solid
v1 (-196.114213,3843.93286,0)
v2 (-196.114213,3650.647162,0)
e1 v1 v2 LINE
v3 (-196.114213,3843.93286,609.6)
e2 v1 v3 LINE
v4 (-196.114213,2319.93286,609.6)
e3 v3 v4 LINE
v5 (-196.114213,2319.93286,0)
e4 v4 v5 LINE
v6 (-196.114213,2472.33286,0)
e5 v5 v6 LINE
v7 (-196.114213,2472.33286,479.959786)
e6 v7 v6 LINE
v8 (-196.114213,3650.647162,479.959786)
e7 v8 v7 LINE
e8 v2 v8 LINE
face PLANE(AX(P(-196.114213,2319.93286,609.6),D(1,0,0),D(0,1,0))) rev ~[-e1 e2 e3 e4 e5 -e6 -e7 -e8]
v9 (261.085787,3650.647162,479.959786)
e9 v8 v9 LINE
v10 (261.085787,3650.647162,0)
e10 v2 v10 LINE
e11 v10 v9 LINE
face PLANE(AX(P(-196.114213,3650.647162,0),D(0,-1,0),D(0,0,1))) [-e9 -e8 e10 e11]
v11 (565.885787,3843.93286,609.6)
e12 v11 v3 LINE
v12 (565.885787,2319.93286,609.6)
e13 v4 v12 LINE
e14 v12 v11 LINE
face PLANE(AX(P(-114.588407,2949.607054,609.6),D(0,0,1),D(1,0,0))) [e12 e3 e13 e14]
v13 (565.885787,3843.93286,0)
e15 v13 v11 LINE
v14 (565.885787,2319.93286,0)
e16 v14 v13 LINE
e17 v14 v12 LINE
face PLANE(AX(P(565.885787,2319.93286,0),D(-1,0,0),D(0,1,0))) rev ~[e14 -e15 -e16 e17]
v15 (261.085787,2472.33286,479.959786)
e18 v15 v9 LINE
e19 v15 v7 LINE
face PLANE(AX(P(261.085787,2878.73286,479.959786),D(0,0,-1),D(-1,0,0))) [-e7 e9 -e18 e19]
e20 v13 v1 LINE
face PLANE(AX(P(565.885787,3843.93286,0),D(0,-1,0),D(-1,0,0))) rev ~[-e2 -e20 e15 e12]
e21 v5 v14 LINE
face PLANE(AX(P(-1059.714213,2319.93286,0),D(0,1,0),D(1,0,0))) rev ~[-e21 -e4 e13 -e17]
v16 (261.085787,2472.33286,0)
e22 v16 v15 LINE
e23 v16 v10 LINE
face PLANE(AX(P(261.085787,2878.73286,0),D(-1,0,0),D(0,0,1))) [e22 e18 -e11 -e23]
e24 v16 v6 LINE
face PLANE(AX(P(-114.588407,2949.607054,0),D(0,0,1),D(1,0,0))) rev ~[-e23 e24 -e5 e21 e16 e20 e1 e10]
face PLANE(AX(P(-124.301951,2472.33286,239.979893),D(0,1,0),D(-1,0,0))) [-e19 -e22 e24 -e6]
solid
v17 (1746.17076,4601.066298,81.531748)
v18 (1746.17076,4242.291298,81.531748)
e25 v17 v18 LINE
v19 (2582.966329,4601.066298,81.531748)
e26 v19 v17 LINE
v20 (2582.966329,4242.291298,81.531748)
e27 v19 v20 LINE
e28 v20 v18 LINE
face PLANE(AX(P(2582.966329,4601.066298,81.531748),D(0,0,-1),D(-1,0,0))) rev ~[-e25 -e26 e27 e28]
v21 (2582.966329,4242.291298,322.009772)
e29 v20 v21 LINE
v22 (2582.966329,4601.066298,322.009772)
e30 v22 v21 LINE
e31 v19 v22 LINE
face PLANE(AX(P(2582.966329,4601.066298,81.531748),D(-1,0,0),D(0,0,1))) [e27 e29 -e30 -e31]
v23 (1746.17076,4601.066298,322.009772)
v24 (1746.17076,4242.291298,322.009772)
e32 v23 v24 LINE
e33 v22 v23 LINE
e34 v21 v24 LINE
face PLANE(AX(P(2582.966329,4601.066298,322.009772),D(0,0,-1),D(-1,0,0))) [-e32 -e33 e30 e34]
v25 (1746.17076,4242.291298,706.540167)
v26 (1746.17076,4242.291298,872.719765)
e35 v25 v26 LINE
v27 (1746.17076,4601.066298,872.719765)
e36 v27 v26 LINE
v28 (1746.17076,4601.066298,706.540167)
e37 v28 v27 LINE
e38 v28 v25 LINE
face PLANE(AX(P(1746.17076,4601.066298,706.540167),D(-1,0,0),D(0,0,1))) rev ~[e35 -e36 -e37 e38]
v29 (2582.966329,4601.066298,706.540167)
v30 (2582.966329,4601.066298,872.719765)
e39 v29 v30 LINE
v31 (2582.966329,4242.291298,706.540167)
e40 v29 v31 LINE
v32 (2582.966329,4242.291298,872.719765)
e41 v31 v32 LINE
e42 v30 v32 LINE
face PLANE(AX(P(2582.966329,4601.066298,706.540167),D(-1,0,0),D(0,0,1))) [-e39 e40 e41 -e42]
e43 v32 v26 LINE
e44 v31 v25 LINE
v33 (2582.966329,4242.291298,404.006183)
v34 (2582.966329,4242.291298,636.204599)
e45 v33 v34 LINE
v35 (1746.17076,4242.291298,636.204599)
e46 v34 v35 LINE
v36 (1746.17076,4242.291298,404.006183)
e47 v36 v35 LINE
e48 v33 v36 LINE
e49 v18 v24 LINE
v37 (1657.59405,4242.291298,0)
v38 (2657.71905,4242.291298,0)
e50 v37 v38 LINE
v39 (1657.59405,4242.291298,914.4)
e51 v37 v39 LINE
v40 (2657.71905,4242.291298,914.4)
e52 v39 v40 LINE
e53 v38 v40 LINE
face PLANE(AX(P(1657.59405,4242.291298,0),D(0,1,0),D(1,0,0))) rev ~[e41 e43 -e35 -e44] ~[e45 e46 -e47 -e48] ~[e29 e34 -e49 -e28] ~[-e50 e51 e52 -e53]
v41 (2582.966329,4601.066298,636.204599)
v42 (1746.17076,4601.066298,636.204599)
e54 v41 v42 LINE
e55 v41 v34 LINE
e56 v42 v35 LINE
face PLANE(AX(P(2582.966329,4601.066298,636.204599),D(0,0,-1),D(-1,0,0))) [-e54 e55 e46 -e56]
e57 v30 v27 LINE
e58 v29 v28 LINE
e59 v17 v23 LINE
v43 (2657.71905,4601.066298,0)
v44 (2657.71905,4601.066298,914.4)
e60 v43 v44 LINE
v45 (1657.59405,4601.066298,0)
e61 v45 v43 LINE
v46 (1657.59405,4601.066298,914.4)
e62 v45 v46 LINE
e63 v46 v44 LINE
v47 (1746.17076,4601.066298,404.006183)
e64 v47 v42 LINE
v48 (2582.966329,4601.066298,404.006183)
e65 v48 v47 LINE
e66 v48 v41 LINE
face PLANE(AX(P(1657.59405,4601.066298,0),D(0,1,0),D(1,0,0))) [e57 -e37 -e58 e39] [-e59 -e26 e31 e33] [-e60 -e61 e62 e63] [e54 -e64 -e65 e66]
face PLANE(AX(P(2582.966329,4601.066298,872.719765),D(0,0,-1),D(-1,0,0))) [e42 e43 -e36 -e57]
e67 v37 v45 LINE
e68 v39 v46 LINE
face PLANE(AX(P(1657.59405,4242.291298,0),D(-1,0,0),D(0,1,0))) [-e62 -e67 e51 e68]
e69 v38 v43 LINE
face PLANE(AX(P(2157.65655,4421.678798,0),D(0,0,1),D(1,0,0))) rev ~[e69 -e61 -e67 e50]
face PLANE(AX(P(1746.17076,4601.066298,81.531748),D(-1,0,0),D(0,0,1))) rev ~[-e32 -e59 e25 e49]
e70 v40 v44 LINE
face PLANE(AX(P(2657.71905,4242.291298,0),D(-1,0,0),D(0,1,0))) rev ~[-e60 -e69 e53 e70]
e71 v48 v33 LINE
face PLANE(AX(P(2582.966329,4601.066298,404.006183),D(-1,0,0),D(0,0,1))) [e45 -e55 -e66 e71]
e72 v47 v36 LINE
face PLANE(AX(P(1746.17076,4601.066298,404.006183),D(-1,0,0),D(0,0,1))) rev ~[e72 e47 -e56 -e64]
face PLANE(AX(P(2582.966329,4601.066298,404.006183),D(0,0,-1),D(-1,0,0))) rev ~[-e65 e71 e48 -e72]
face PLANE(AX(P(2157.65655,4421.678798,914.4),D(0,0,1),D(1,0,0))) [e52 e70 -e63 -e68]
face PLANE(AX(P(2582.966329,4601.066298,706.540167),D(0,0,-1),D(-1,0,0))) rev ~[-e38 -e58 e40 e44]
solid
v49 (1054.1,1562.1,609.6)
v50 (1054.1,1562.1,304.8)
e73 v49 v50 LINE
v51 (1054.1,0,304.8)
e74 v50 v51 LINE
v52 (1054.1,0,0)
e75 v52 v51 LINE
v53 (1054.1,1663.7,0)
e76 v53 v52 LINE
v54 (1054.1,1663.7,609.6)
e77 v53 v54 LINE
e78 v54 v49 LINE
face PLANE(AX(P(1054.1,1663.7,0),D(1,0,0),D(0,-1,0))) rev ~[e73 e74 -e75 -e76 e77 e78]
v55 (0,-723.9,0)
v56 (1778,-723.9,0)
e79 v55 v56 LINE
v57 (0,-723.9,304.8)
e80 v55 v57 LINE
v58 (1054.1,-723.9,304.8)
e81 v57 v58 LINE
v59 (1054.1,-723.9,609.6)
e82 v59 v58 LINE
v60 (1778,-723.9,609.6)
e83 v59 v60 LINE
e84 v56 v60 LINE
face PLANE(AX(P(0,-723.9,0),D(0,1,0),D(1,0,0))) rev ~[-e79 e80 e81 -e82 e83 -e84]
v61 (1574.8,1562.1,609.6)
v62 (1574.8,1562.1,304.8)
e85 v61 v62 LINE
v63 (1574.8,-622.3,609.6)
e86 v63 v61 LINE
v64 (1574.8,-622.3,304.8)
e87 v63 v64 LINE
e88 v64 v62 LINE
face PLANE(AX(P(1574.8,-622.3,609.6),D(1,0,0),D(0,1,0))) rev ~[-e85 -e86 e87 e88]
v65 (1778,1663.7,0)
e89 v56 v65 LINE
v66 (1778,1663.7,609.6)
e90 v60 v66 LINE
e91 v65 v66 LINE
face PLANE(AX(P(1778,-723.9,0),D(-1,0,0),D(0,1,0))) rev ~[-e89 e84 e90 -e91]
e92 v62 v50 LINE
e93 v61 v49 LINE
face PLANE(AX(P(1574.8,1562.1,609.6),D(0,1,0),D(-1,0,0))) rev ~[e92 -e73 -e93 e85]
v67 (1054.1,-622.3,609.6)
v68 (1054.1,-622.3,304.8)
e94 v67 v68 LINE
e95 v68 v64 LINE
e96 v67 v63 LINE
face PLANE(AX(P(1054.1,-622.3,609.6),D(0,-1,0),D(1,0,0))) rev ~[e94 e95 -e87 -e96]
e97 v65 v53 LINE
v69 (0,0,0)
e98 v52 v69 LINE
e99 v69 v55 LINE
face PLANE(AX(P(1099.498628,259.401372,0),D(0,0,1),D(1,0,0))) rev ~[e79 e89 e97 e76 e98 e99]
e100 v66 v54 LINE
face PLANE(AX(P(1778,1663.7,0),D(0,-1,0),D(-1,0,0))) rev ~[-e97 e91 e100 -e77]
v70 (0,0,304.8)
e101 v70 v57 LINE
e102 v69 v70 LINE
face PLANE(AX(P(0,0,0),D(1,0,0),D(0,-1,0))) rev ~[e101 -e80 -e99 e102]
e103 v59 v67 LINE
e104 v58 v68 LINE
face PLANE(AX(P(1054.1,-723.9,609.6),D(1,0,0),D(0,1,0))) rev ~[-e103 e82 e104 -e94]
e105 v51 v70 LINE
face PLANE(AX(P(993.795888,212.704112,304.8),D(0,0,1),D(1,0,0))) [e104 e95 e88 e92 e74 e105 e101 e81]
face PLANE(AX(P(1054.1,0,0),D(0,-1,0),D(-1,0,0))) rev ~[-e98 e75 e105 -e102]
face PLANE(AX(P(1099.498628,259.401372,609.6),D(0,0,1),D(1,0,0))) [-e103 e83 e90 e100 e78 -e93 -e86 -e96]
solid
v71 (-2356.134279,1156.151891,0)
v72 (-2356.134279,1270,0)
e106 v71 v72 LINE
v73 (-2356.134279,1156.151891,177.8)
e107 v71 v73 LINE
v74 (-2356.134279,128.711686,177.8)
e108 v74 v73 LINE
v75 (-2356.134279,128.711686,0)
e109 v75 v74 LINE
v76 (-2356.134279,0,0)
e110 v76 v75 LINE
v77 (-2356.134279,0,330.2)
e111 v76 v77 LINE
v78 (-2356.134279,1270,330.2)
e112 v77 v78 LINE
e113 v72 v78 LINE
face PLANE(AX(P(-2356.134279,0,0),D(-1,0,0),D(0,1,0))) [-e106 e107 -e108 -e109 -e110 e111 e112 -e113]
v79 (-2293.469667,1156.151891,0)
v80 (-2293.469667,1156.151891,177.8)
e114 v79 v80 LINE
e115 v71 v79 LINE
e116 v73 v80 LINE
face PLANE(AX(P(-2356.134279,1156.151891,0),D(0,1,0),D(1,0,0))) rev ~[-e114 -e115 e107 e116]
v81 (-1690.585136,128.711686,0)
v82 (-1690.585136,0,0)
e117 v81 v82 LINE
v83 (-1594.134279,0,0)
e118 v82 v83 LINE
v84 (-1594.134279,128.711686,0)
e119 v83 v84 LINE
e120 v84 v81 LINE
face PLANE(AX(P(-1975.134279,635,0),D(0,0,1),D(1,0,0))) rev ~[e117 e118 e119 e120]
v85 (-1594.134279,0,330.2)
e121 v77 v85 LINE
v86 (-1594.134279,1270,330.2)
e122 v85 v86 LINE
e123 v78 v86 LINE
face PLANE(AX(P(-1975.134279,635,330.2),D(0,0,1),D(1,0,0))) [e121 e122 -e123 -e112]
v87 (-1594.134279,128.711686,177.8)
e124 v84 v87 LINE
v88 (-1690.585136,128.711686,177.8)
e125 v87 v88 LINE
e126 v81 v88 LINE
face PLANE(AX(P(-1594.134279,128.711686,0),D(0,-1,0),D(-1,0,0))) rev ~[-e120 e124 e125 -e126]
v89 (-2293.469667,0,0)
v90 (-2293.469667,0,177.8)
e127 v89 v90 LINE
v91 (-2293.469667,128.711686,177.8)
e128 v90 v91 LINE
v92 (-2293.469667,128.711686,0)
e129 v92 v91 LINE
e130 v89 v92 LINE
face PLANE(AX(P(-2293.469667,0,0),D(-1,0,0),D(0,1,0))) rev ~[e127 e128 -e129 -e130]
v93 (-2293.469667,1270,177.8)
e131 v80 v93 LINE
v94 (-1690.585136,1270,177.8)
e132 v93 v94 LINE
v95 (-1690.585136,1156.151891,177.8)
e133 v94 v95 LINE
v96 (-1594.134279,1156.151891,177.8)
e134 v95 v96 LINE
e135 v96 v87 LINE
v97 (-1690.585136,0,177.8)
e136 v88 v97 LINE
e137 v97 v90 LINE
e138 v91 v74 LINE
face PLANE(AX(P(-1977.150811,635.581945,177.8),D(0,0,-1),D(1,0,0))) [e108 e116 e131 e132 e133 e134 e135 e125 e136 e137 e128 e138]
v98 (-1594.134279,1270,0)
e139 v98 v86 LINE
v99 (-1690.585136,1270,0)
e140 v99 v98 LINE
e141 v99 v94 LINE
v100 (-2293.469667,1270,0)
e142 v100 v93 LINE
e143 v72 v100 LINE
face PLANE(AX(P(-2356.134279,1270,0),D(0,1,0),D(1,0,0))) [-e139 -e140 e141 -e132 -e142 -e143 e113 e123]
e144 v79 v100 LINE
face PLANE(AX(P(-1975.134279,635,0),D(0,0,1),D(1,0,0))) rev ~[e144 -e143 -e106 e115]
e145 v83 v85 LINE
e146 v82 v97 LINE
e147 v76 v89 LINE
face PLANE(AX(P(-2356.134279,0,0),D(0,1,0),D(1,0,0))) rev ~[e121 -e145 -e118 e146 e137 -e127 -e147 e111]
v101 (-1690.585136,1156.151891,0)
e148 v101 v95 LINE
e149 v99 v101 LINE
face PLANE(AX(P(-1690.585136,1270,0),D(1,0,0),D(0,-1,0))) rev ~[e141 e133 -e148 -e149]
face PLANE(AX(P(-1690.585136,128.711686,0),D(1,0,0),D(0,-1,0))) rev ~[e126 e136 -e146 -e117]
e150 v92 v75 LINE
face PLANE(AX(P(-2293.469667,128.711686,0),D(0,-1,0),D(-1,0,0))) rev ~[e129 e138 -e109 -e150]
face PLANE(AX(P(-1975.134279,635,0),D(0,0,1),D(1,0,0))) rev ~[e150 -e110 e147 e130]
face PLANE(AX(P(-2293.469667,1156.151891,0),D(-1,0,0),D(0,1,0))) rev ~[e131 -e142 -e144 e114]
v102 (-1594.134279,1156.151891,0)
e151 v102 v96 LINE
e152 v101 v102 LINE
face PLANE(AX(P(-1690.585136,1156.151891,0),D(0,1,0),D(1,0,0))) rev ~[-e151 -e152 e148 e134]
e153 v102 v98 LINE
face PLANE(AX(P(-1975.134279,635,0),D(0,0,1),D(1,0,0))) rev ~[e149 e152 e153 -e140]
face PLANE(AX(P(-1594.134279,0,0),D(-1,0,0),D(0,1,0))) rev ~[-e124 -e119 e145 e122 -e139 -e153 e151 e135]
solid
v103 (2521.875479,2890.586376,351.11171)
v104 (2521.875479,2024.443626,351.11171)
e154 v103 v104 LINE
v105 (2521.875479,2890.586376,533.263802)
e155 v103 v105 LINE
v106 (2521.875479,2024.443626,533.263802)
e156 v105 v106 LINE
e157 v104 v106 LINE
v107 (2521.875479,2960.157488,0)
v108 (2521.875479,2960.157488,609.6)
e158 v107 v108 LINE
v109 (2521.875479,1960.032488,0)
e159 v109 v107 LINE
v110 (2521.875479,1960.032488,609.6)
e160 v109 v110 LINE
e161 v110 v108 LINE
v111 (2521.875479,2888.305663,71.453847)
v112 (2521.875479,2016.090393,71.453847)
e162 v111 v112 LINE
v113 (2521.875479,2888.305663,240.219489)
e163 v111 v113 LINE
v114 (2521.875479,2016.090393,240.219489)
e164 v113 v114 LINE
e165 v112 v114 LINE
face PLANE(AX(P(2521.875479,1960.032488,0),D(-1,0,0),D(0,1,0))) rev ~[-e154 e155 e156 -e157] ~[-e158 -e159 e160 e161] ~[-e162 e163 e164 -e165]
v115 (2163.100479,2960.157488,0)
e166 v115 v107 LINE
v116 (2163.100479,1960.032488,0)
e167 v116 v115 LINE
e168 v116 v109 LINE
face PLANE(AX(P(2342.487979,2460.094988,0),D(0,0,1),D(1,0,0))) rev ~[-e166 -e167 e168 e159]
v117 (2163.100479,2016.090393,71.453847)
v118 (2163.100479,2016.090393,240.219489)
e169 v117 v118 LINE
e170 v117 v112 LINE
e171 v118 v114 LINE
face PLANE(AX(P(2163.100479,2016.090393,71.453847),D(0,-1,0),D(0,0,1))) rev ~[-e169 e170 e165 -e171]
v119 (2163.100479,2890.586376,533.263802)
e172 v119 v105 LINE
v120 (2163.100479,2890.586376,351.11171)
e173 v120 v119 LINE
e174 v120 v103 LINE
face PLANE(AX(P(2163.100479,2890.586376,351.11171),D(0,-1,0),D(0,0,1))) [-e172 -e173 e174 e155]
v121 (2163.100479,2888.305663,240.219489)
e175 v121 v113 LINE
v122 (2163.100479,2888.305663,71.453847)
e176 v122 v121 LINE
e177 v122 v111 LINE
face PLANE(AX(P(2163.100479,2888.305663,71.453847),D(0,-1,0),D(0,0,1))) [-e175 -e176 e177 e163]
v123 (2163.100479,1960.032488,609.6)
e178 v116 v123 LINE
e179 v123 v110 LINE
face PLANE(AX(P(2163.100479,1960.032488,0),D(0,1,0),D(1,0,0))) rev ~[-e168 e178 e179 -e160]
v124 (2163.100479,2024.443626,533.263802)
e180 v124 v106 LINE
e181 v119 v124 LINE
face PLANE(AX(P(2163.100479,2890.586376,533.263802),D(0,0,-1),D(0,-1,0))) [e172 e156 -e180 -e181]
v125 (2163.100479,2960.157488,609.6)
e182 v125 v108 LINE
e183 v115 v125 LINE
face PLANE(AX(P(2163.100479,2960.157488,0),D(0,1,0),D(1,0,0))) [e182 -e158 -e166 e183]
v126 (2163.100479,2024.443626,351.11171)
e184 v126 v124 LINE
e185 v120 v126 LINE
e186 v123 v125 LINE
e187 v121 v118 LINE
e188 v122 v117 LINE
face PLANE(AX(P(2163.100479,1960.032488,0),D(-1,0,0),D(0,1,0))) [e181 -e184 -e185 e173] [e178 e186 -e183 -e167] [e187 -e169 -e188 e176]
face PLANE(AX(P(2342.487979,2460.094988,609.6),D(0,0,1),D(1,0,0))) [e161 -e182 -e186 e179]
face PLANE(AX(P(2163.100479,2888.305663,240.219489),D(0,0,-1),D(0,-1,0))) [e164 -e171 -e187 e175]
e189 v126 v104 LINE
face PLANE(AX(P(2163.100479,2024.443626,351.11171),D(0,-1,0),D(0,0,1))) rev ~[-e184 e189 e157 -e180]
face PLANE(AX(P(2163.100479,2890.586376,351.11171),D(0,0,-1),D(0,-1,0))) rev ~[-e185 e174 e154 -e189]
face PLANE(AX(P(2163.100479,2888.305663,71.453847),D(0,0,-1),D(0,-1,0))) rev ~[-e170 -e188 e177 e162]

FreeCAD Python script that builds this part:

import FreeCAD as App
import Part
import Sketcher
from FreeCAD import Vector
Q = App.Units.Quantity

doc = App.newDocument("Part")
body = doc.addObject("PartDesign::Body", "Body")

# Sketch on XY plane
sketch1 = body.newObject("Sketcher::SketchObject", "Sketch")
sketch1.AttachmentSupport = (doc.getObject("XY_Plane"), [""])
sketch1.MapMode = "FlatFace"
sketch1.addGeometry(Part.LineSegment(Vector(1054, 0, 0), Vector(0, 0, 0)), False)
sketch1.addGeometry(Part.LineSegment(Vector(0, 0, 0), Vector(0, -724, 0)), False)
sketch1.addGeometry(Part.LineSegment(Vector(0, -724, 0), Vector(1778, -724, 0)), False)
sketch1.addGeometry(Part.LineSegment(Vector(1778, -724, 0), Vector(1778, 1664, 0)), False)
sketch1.addGeometry(Part.LineSegment(Vector(1778, 1664, 0), Vector(1054, 1664, 0)), False)
sketch1.addGeometry(Part.LineSegment(Vector(1054, 1664, 0), Vector(1054, 0, 0)), False)
sketch1.addConstraint(Sketcher.Constraint("Coincident", 0, 2, 1, 1))
sketch1.addConstraint(Sketcher.Constraint("Coincident", 1, 2, 2, 1))
sketch1.addConstraint(Sketcher.Constraint("Coincident", 2, 2, 3, 1))
sketch1.addConstraint(Sketcher.Constraint("Coincident", 3, 2, 4, 1))
sketch1.addConstraint(Sketcher.Constraint("Coincident", 4, 2, 5, 1))
sketch1.addConstraint(Sketcher.Constraint("Coincident", 5, 2, 0, 1))
sketch1.addConstraint(Sketcher.Constraint("Horizontal", 0))
sketch1.addConstraint(Sketcher.Constraint("Vertical", 1))
sketch1.addConstraint(Sketcher.Constraint("Horizontal", 2))
sketch1.addConstraint(Sketcher.Constraint("Vertical", 3))
sketch1.addConstraint(Sketcher.Constraint("Horizontal", 4))
sketch1.addConstraint(Sketcher.Constraint("Vertical", 5))
sketch1.addConstraint(Sketcher.Constraint("Coincident", 0, 2, -1, 1))
sketch1.addConstraint(Sketcher.Constraint("Equal", 4, 1))
sketch1.addConstraint(Sketcher.Constraint("DistanceX", 2, 1, 2, 2, Q("70 in")))
sketch1.addConstraint(Sketcher.Constraint("DistanceY", 3, 1, 3, 2, Q("94 in")))
sketch1.addConstraint(Sketcher.Constraint("DistanceX", 0, 2, 0, 1, Q("41.5 in")))
pad1 = body.newObject("PartDesign::Pad", "Pad")
pad1.Profile = sketch1
pad1.Length = Q("24 in")

# Sketch on XY plane
sketch2 = body.newObject("Sketcher::SketchObject", "Sketch001")
sketch2.AttachmentSupport = (doc.getObject("XY_Plane"), [""])
sketch2.MapMode = "FlatFace"
sketch2.AttachmentOffset = App.Placement(Vector(0, 0, 24 * 25.4), App.Rotation())
sketch2.addGeometry(Part.LineSegment(Vector(0, -724, 0), Vector(1054, -724, 0)), False)
sketch2.addGeometry(Part.LineSegment(Vector(1054, -724, 0), Vector(1054, -622, 0)), False)
sketch2.addGeometry(Part.LineSegment(Vector(1054, -622, 0), Vector(1575, -622, 0)), False)
sketch2.addGeometry(Part.LineSegment(Vector(1575, -622, 0), Vector(1575, 1562, 0)), False)
sketch2.addGeometry(Part.LineSegment(Vector(1575, 1562, 0), Vector(1054, 1562, 0)), False)
sketch2.addGeometry(Part.LineSegment(Vector(1054, 1562, 0), Vector(1054, 0, 0)), False)
sketch2.addGeometry(Part.LineSegment(Vector(1054, 0, 0), Vector(0, 0, 0)), False)
sketch2.addGeometry(Part.LineSegment(Vector(0, 0, 0), Vector(0, -724, 0)), False)
sketch2.addConstraint(Sketcher.Constraint("Coincident", 0, 2, 1, 1))
sketch2.addConstraint(Sketcher.Constraint("Coincident", 1, 2, 2, 1))
sketch2.addConstraint(Sketcher.Constraint("Coincident", 2, 2, 3, 1))
sketch2.addConstraint(Sketcher.Constraint("Coincident", 3, 2, 4, 1))
sketch2.addConstraint(Sketcher.Constraint("Coincident", 4, 2, 5, 1))
sketch2.addConstraint(Sketcher.Constraint("Coincident", 5, 2, 6, 1))
sketch2.addConstraint(Sketcher.Constraint("Coincident", 6, 2, 7, 1))
sketch2.addConstraint(Sketcher.Constraint("Coincident", 7, 2, 0, 1))
sketch2.addConstraint(Sketcher.Constraint("Horizontal", 0))
sketch2.addConstraint(Sketcher.Constraint("Vertical", 1))
sketch2.addConstraint(Sketcher.Constraint("Horizontal", 2))
sketch2.addConstraint(Sketcher.Constraint("Vertical", 3))
sketch2.addConstraint(Sketcher.Constraint("Horizontal", 4))
sketch2.addConstraint(Sketcher.Constraint("Vertical", 5))
sketch2.addConstraint(Sketcher.Constraint("Horizontal", 6))
sketch2.addConstraint(Sketcher.Constraint("Vertical", 7))
sketch2.addConstraint(Sketcher.Constraint("Coincident", 6, 2, -1, 1))
sketch2.addConstraint(Sketcher.Constraint("Vertical", 1, 2, 4, 2))
sketch2.addConstraint(Sketcher.Constraint("DistanceY", 1, 1, 1, 2, Q("4 in")))
sketch2.addConstraint(Sketcher.Constraint("DistanceY", 3, 1, 3, 2, Q("86 in")))
sketch2.addConstraint(Sketcher.Constraint("DistanceX", 0, 1, 0, 2, Q("41.5 in")))
sketch2.addConstraint(Sketcher.Constraint("DistanceX", 2, 1, 2, 2, Q("20.5 in")))
sketch2.addConstraint(Sketcher.Constraint("DistanceY", 5, 2, 5, 1, Q("61.5 in")))
pocket1 = body.newObject("PartDesign::Pocket", "Pocket")
pocket1.Profile = sketch2
pocket1.Length = Q("12 in")
body2 = doc.addObject("PartDesign::Body", "Body001")

# Sketch on XY plane
sketch3 = body2.newObject("Sketcher::SketchObject", "Sketch002")
sketch3.AttachmentSupport = (doc.getObject("XY_Plane001"), [""])
sketch3.MapMode = "FlatFace"
sketch3.addGeometry(Part.LineSegment(Vector(-2356, 1270, 0), Vector(-2356, 0, 0)), False)
sketch3.addGeometry(Part.LineSegment(Vector(-2356, 0, 0), Vector(-1594, 0, 0)), False)
sketch3.addGeometry(Part.LineSegment(Vector(-1594, 0, 0), Vector(-1594, 1270, 0)), False)
sketch3.addGeometry(Part.LineSegment(Vector(-1594, 1270, 0), Vector(-2356, 1270, 0)), False)
sketch3.addConstraint(Sketcher.Constraint("Coincident", 0, 2, 1, 1))
sketch3.addConstraint(Sketcher.Constraint("Coincident", 1, 2, 2, 1))
sketch3.addConstraint(Sketcher.Constraint("Coincident", 2, 2, 3, 1))
sketch3.addConstraint(Sketcher.Constraint("Coincident", 3, 2, 0, 1))
sketch3.addConstraint(Sketcher.Constraint("Vertical", 0))
sketch3.addConstraint(Sketcher.Constraint("Horizontal", 1))
sketch3.addConstraint(Sketcher.Constraint("Vertical", 2))
sketch3.addConstraint(Sketcher.Constraint("Horizontal", 3))
sketch3.addConstraint(Sketcher.Constraint("PointOnObject", 0, 2, -1))
sketch3.addConstraint(Sketcher.Constraint("DistanceX", 1, 1, 1, 2, Q("30 in")))
sketch3.addConstraint(Sketcher.Constraint("DistanceY", 0, 2, 0, 1, Q("50 in")))
sketch3.addConstraint(Sketcher.Constraint("DistanceX", 0, 2, -1, 1, 2356.134279))
pad2 = body2.newObject("PartDesign::Pad", "Pad001")
pad2.Profile = sketch3
pad2.Length = Q("13 in")

# Sketch on XY plane
sketch4 = body2.newObject("Sketcher::SketchObject", "Sketch003")
sketch4.AttachmentSupport = (doc.getObject("XY_Plane001"), [""])
sketch4.MapMode = "FlatFace"
sketch4.addGeometry(Part.LineSegment(Vector(-1594, 1156, 0), Vector(-1594, 129, 0)), False)
sketch4.addGeometry(Part.LineSegment(Vector(-1594, 129, 0), Vector(-1691, 129, 0)), False)
sketch4.addGeometry(Part.LineSegment(Vector(-1691, 129, 0), Vector(-1691, 0, 0)), False)
sketch4.addGeometry(Part.LineSegment(Vector(-1691, 0, 0), Vector(-2293, 0, 0)), False)
sketch4.addGeometry(Part.LineSegment(Vector(-2293, 0, 0), Vector(-2293, 129, 0)), False)
sketch4.addGeometry(Part.LineSegment(Vector(-2293, 129, 0), Vector(-2356, 129, 0)), False)
sketch4.addGeometry(Part.LineSegment(Vector(-2356, 129, 0), Vector(-2356, 1156, 0)), False)
sketch4.addGeometry(Part.LineSegment(Vector(-2356, 1156, 0), Vector(-2293, 1156, 0)), False)
sketch4.addGeometry(Part.LineSegment(Vector(-2293, 1156, 0), Vector(-2293, 1270, 0)), False)
sketch4.addGeometry(Part.LineSegment(Vector(-2293, 1270, 0), Vector(-1691, 1270, 0)), False)
sketch4.addGeometry(Part.LineSegment(Vector(-1691, 1270, 0), Vector(-1691, 1156, 0)), False)
sketch4.addGeometry(Part.LineSegment(Vector(-1691, 1156, 0), Vector(-1594, 1156, 0)), False)
sketch4.addConstraint(Sketcher.Constraint("Coincident", 0, 2, 1, 1))
sketch4.addConstraint(Sketcher.Constraint("Coincident", 1, 2, 2, 1))
sketch4.addConstraint(Sketcher.Constraint("Coincident", 2, 2, 3, 1))
sketch4.addConstraint(Sketcher.Constraint("Coincident", 3, 2, 4, 1))
sketch4.addConstraint(Sketcher.Constraint("Coincident", 4, 2, 5, 1))
sketch4.addConstraint(Sketcher.Constraint("Coincident", 5, 2, 6, 1))
sketch4.addConstraint(Sketcher.Constraint("Coincident", 6, 2, 7, 1))
sketch4.addConstraint(Sketcher.Constraint("Coincident", 7, 2, 8, 1))
sketch4.addConstraint(Sketcher.Constraint("Coincident", 8, 2, 9, 1))
sketch4.addConstraint(Sketcher.Constraint("Coincident", 9, 2, 10, 1))
sketch4.addConstraint(Sketcher.Constraint("Coincident", 10, 2, 11, 1))
sketch4.addConstraint(Sketcher.Constraint("Coincident", 11, 2, 0, 1))
sketch4.addConstraint(Sketcher.Constraint("Vertical", 0))
sketch4.addConstraint(Sketcher.Constraint("Horizontal", 1))
sketch4.addConstraint(Sketcher.Constraint("Vertical", 2))
sketch4.addConstraint(Sketcher.Constraint("Horizontal", 3))
sketch4.addConstraint(Sketcher.Constraint("Vertical", 4))
sketch4.addConstraint(Sketcher.Constraint("Horizontal", 5))
sketch4.addConstraint(Sketcher.Constraint("Vertical", 6))
sketch4.addConstraint(Sketcher.Constraint("Horizontal", 7))
sketch4.addConstraint(Sketcher.Constraint("Vertical", 8))
sketch4.addConstraint(Sketcher.Constraint("Horizontal", 9))
sketch4.addConstraint(Sketcher.Constraint("Vertical", 10))
sketch4.addConstraint(Sketcher.Constraint("Horizontal", 11))
sketch4.addConstraint(Sketcher.Constraint("PointOnObject", 2, 2, -1))
sketch4.addConstraint(Sketcher.Constraint("Horizontal", 1, 2, 4, 2))
sketch4.addConstraint(Sketcher.Constraint("Horizontal", 7, 2, 10, 2))
sketch4.addConstraint(Sketcher.Constraint("Vertical", 4, 2, 7, 2))
sketch4.addConstraint(Sketcher.Constraint("Vertical", 2, 2, 9, 2))
sketch4.addConstraint(Sketcher.Constraint("DistanceY", -1, 1, 8, 2, Q("50 in")))
sketch4.addConstraint(Sketcher.Constraint("DistanceX", 5, 2, 0, 2, Q("30 in")))
sketch4.addConstraint(Sketcher.Constraint("DistanceX", 3, 2, 3, 1, 602.884531))
sketch4.addConstraint(Sketcher.Constraint("DistanceY", 8, 1, 8, 2, 113.848109))
sketch4.addConstraint(Sketcher.Constraint("DistanceX", 1, 2, 1, 1, 96.450857))
sketch4.addConstraint(Sketcher.Constraint("DistanceY", 0, 2, 0, 1, 1027.440205))
sketch4.addConstraint(Sketcher.Constraint("DistanceX", 0, 2, -1, 1, 1594.134279))
pocket2 = body2.newObject("PartDesign::Pocket", "Pocket001")
pocket2.Profile = sketch4
pocket2.Length = Q("7 in")
pocket2.Reversed = True
body3 = doc.addObject("PartDesign::Body", "Body002")

# Sketch on XY plane
sketch5 = body3.newObject("Sketcher::SketchObject", "Sketch004")
sketch5.AttachmentSupport = (doc.getObject("XY_Plane002"), [""])
sketch5.MapMode = "FlatFace"
sketch5.addGeometry(Part.LineSegment(Vector(-1060, 2320, 0), Vector(566, 2320, 0)), False)
sketch5.addGeometry(Part.LineSegment(Vector(566, 2320, 0), Vector(566, 3844, 0)), False)
sketch5.addGeometry(Part.LineSegment(Vector(566, 3844, 0), Vector(-196, 3844, 0)), False)
sketch5.addGeometry(Part.LineSegment(Vector(-196, 3844, 0), Vector(-196, 2879, 0)), False)
sketch5.addGeometry(Part.LineSegment(Vector(-196, 2879, 0), Vector(-1060, 2879, 0)), False)
sketch5.addGeometry(Part.LineSegment(Vector(-1060, 2879, 0), Vector(-1060, 2320, 0)), False)
sketch5.addConstraint(Sketcher.Constraint("Coincident", 0, 2, 1, 1))
sketch5.addConstraint(Sketcher.Constraint("Coincident", 1, 2, 2, 1))
sketch5.addConstraint(Sketcher.Constraint("Coincident", 2, 2, 3, 1))
sketch5.addConstraint(Sketcher.Constraint("Coincident", 3, 2, 4, 1))
sketch5.addConstraint(Sketcher.Constraint("Coincident", 4, 2, 5, 1))
sketch5.addConstraint(Sketcher.Constraint("Coincident", 5, 2, 0, 1))
sketch5.addConstraint(Sketcher.Constraint("Horizontal", 0))
sketch5.addConstraint(Sketcher.Constraint("Vertical", 1))
sketch5.addConstraint(Sketcher.Constraint("Horizontal", 2))
sketch5.addConstraint(Sketcher.Constraint("Vertical", 3))
sketch5.addConstraint(Sketcher.Constraint("Horizontal", 4))
sketch5.addConstraint(Sketcher.Constraint("Vertical", 5))
sketch5.addConstraint(Sketcher.Constraint("DistanceX", 0, 1, 0, 2, Q("64 in")))
sketch5.addConstraint(Sketcher.Constraint("DistanceX", 2, 2, 2, 1, Q("30 in")))
sketch5.addConstraint(Sketcher.Constraint("DistanceY", 1, 1, 1, 2, Q("60 in")))
sketch5.addConstraint(Sketcher.Constraint("DistanceY", 3, 2, 3, 1, Q("38 in")))
sketch5.addConstraint(Sketcher.Constraint("DistanceY", -1, 1, 0, 2, 2319.93286))
sketch5.addConstraint(Sketcher.Constraint("DistanceX", -1, 1, 0, 2, 565.885787))
pad3 = body3.newObject("PartDesign::Pad", "Pad002")
pad3.Profile = sketch5
pad3.Length = Q("24 in")

# Sketch on YZ plane
sketch6 = body3.newObject("Sketcher::SketchObject", "Sketch005")
sketch6.AttachmentSupport = (doc.getObject("YZ_Plane002"), [""])
sketch6.MapMode = "FlatFace"
sketch6.AttachmentOffset = App.Placement(Vector(0, 0, -196.114213), App.Rotation())
sketch6.addGeometry(Part.LineSegment(Vector(3651, 480, 0), Vector(3651, 0, 0)), False)
sketch6.addGeometry(Part.LineSegment(Vector(3651, 0, 0), Vector(2879, 0, 0)), False)
sketch6.addGeometry(Part.LineSegment(Vector(2879, 0, 0), Vector(2879, 480, 0)), False)
sketch6.addGeometry(Part.LineSegment(Vector(2879, 480, 0), Vector(3651, 480, 0)), False)
sketch6.addConstraint(Sketcher.Constraint("Coincident", 0, 2, 1, 1))
sketch6.addConstraint(Sketcher.Constraint("Coincident", 1, 2, 2, 1))
sketch6.addConstraint(Sketcher.Constraint("Coincident", 2, 2, 3, 1))
sketch6.addConstraint(Sketcher.Constraint("Coincident", 3, 2, 0, 1))
sketch6.addConstraint(Sketcher.Constraint("Vertical", 0))
sketch6.addConstraint(Sketcher.Constraint("Horizontal", 1))
sketch6.addConstraint(Sketcher.Constraint("Vertical", 2))
sketch6.addConstraint(Sketcher.Constraint("Horizontal", 3))
sketch6.addConstraint(Sketcher.Constraint("PointOnObject", 0, 2, -1))
sketch6.addConstraint(Sketcher.Constraint("DistanceX", 1, 2, 1, 1, 771.914303))
sketch6.addConstraint(Sketcher.Constraint("DistanceY", 0, 2, 0, 1, 479.959786))
sketch6.addConstraint(Sketcher.Constraint("DistanceX", -1, 1, 1, 2, 2878.732859))
pocket3 = body3.newObject("PartDesign::Pocket", "Pocket002")
pocket3.Profile = sketch6
pocket3.Length = Q("18 in")
pocket3.Reversed = True

# Sketch on XZ plane
sketch7 = body3.newObject("Sketcher::SketchObject", "Sketch006")
sketch7.AttachmentSupport = (doc.getObject("XZ_Plane002"), [""])
sketch7.MapMode = "FlatFace"
sketch7.AttachmentOffset = App.Placement(Vector(0, 0, -2878.73286), App.Rotation())
sketch7.addGeometry(Part.LineSegment(Vector(261, 480, 0), Vector(261, 0, 0)), False)
sketch7.addGeometry(Part.LineSegment(Vector(261, 0, 0), Vector(-510, 0, 0)), False)
sketch7.addGeometry(Part.LineSegment(Vector(-510, 0, 0), Vector(-510, 480, 0)), False)
sketch7.addGeometry(Part.LineSegment(Vector(-510, 480, 0), Vector(261, 480, 0)), False)
sketch7.addConstraint(Sketcher.Constraint("Coincident", 0, 2, 1, 1))
sketch7.addConstraint(Sketcher.Constraint("Coincident", 1, 2, 2, 1))
sketch7.addConstraint(Sketcher.Constraint("Coincident", 2, 2, 3, 1))
sketch7.addConstraint(Sketcher.Constraint("Coincident", 3, 2, 0, 1))
sketch7.addConstraint(Sketcher.Constraint("Vertical", 0))
sketch7.addConstraint(Sketcher.Constraint("Horizontal", 1))
sketch7.addConstraint(Sketcher.Constraint("Vertical", 2))
sketch7.addConstraint(Sketcher.Constraint("Horizontal", 3))
sketch7.addConstraint(Sketcher.Constraint("PointOnObject", 0, 2, -1))
sketch7.addConstraint(Sketcher.Constraint("DistanceX", 1, 2, 1, 1, 770.775476))
sketch7.addConstraint(Sketcher.Constraint("DistanceY", 0, 2, 0, 1, 479.959786))
sketch7.addConstraint(Sketcher.Constraint("DistanceX", 1, 2, -1, 1, 509.689689))
pocket4 = body3.newObject("PartDesign::Pocket", "Pocket003")
pocket4.Profile = sketch7
pocket4.Length = Q("16 in")
pocket4.Reversed = True

# Sketch on XY plane
sketch8 = body3.newObject("Sketcher::SketchObject", "Sketch007")
sketch8.AttachmentSupport = (doc.getObject("XY_Plane002"), [""])
sketch8.MapMode = "FlatFace"
sketch8.AttachmentOffset = App.Placement(Vector(0, 0, 24 * 25.4), App.Rotation())
sketch8.addGeometry(Part.LineSegment(Vector(-1060, 2879, 0), Vector(-1060, 2320, 0)), False)
sketch8.addGeometry(Part.LineSegment(Vector(-1060, 2320, 0), Vector(-196, 2320, 0)), False)
sketch8.addGeometry(Part.LineSegment(Vector(-196, 2320, 0), Vector(-196, 2879, 0)), False)
sketch8.addGeometry(Part.LineSegment(Vector(-196, 2879, 0), Vector(-1060, 2879, 0)), False)
sketch8.addConstraint(Sketcher.Constraint("Coincident", 0, 2, 1, 1))
sketch8.addConstraint(Sketcher.Constraint("Coincident", 1, 2, 2, 1))
sketch8.addConstraint(Sketcher.Constraint("Coincident", 2, 2, 3, 1))
sketch8.addConstraint(Sketcher.Constraint("Coincident", 3, 2, 0, 1))
sketch8.addConstraint(Sketcher.Constraint("Vertical", 0))
sketch8.addConstraint(Sketcher.Constraint("Horizontal", 1))
sketch8.addConstraint(Sketcher.Constraint("Vertical", 2))
sketch8.addConstraint(Sketcher.Constraint("Horizontal", 3))
sketch8.addConstraint(Sketcher.Constraint("DistanceX", 1, 1, 1, 2, Q("34 in")))
sketch8.addConstraint(Sketcher.Constraint("DistanceY", 0, 2, 0, 1, Q("22 in")))
sketch8.addConstraint(Sketcher.Constraint("DistanceY", -1, 1, 0, 2, 2319.93286))
sketch8.addConstraint(Sketcher.Constraint("DistanceX", 0, 2, -1, 1, 1059.714213))
pocket5 = body3.newObject("PartDesign::Pocket", "Pocket004")
pocket5.Profile = sketch8
pocket5.Type = "ThroughAll"
body4 = doc.addObject("PartDesign::Body", "Body003")

# Sketch on XY plane
sketch9 = body4.newObject("Sketcher::SketchObject", "Sketch008")
sketch9.AttachmentSupport = (doc.getObject("XY_Plane003"), [""])
sketch9.MapMode = "FlatFace"
sketch9.addGeometry(Part.LineSegment(Vector(1658, 4601, 0), Vector(1658, 4242, 0)), False)
sketch9.addGeometry(Part.LineSegment(Vector(1658, 4242, 0), Vector(2658, 4242, 0)), False)
sketch9.addGeometry(Part.LineSegment(Vector(2658, 4242, 0), Vector(2658, 4601, 0)), False)
sketch9.addGeometry(Part.LineSegment(Vector(2658, 4601, 0), Vector(1658, 4601, 0)), False)
sketch9.addConstraint(Sketcher.Constraint("Coincident", 0, 2, 1, 1))
sketch9.addConstraint(Sketcher.Constraint("Coincident", 1, 2, 2, 1))
sketch9.addConstraint(Sketcher.Constraint("Coincident", 2, 2, 3, 1))
sketch9.addConstraint(Sketcher.Constraint("Coincident", 3, 2, 0, 1))
sketch9.addConstraint(Sketcher.Constraint("Vertical", 0))
sketch9.addConstraint(Sketcher.Constraint("Horizontal", 1))
sketch9.addConstraint(Sketcher.Constraint("Vertical", 2))
sketch9.addConstraint(Sketcher.Constraint("Horizontal", 3))
sketch9.addConstraint(Sketcher.Constraint("DistanceX", 1, 1, 1, 2, Q("39.375 in")))
sketch9.addConstraint(Sketcher.Constraint("DistanceY", 0, 2, 0, 1, Q("14.125 in")))
sketch9.addConstraint(Sketcher.Constraint("DistanceY", -1, 1, 0, 2, 4242.291298))
sketch9.addConstraint(Sketcher.Constraint("DistanceX", -1, 1, 0, 2, 1657.59405))
pad4 = body4.newObject("PartDesign::Pad", "Pad003")
pad4.Profile = sketch9
pad4.Length = Q("36 in")

# Sketch on XZ plane
sketch10 = body4.newObject("Sketcher::SketchObject", "Sketch009")
sketch10.AttachmentSupport = (doc.getObject("XZ_Plane003"), [""])
sketch10.MapMode = "FlatFace"
sketch10.AttachmentOffset = App.Placement(Vector(0, 0, -4601.066298), App.Rotation())
sketch10.addGeometry(Part.LineSegment(Vector(2583, 322, 0), Vector(2583, 82, 0)), False)
sketch10.addGeometry(Part.LineSegment(Vector(2583, 82, 0), Vector(1746, 82, 0)), False)
sketch10.addGeometry(Part.LineSegment(Vector(1746, 82, 0), Vector(1746, 322, 0)), False)
sketch10.addGeometry(Part.LineSegment(Vector(1746, 322, 0), Vector(2583, 322, 0)), False)
sketch10.addGeometry(Part.LineSegment(Vector(2583, 636, 0), Vector(2583, 404, 0)), False)
sketch10.addGeometry(Part.LineSegment(Vector(2583, 404, 0), Vector(1746, 404, 0)), False)
sketch10.addGeometry(Part.LineSegment(Vector(1746, 404, 0), Vector(1746, 636, 0)), False)
sketch10.addGeometry(Part.LineSegment(Vector(1746, 636, 0), Vector(2583, 636, 0)), False)
sketch10.addGeometry(Part.LineSegment(Vector(2583, 873, 0), Vector(2583, 707, 0)), False)
sketch10.addGeometry(Part.LineSegment(Vector(2583, 707, 0), Vector(1746, 707, 0)), False)
sketch10.addGeometry(Part.LineSegment(Vector(1746, 707, 0), Vector(1746, 873, 0)), False)
sketch10.addGeometry(Part.LineSegment(Vector(1746, 873, 0), Vector(2583, 873, 0)), False)
sketch10.addConstraint(Sketcher.Constraint("Coincident", 0, 2, 1, 1))
sketch10.addConstraint(Sketcher.Constraint("Coincident", 1, 2, 2, 1))
sketch10.addConstraint(Sketcher.Constraint("Coincident", 2, 2, 3, 1))
sketch10.addConstraint(Sketcher.Constraint("Coincident", 3, 2, 0, 1))
sketch10.addConstraint(Sketcher.Constraint("Coincident", 4, 2, 5, 1))
sketch10.addConstraint(Sketcher.Constraint("Coincident", 5, 2, 6, 1))
sketch10.addConstraint(Sketcher.Constraint("Coincident", 6, 2, 7, 1))
sketch10.addConstraint(Sketcher.Constraint("Coincident", 7, 2, 4, 1))
sketch10.addConstraint(Sketcher.Constraint("Coincident", 8, 2, 9, 1))
sketch10.addConstraint(Sketcher.Constraint("Coincident", 9, 2, 10, 1))
sketch10.addConstraint(Sketcher.Constraint("Coincident", 10, 2, 11, 1))
sketch10.addConstraint(Sketcher.Constraint("Coincident", 11, 2, 8, 1))
sketch10.addConstraint(Sketcher.Constraint("Vertical", 0))
sketch10.addConstraint(Sketcher.Constraint("Horizontal", 1))
sketch10.addConstraint(Sketcher.Constraint("Vertical", 2))
sketch10.addConstraint(Sketcher.Constraint("Horizontal", 3))
sketch10.addConstraint(Sketcher.Constraint("Vertical", 4))
sketch10.addConstraint(Sketcher.Constraint("Horizontal", 5))
sketch10.addConstraint(Sketcher.Constraint("Vertical", 6))
sketch10.addConstraint(Sketcher.Constraint("Horizontal", 7))
sketch10.addConstraint(Sketcher.Constraint("Vertical", 8))
sketch10.addConstraint(Sketcher.Constraint("Horizontal", 9))
sketch10.addConstraint(Sketcher.Constraint("Vertical", 10))
sketch10.addConstraint(Sketcher.Constraint("Horizontal", 11))
sketch10.addConstraint(Sketcher.Constraint("Vertical", 3, 2, 4, 2))
sketch10.addConstraint(Sketcher.Constraint("Vertical", 2, 2, 5, 2))
sketch10.addConstraint(Sketcher.Constraint("Vertical", 7, 2, 8, 2))
sketch10.addConstraint(Sketcher.Constraint("Vertical", 6, 2, 9, 2))
sketch10.addConstraint(Sketcher.Constraint("DistanceY", 8, 2, 8, 1, 166.179598))
sketch10.addConstraint(Sketcher.Constraint("DistanceX", 1, 2, 1, 1, 836.795569))
sketch10.addConstraint(Sketcher.Constraint("DistanceY", -1, 1, 6, 2, 636.204599))
sketch10.addConstraint(Sketcher.Constraint("DistanceY", 0, 2, 0, 1, 240.478024))
sketch10.addConstraint(Sketcher.Constraint("DistanceY", 4, 2, 4, 1, 232.198417))
sketch10.addConstraint(Sketcher.Constraint("DistanceX", -1, 1, 0, 2, 2582.966329))
sketch10.addConstraint(Sketcher.Constraint("DistanceY", -1, 1, 2, 2, 322.009772))
sketch10.addConstraint(Sketcher.Constraint("DistanceY", 0, 2, 8, 2, 625.008419))
pocket6 = body4.newObject("PartDesign::Pocket", "Pocket005")
pocket6.Profile = sketch10
pocket6.Length = Q("15 in")
pocket6.Reversed = True
body5 = doc.addObject("PartDesign::Body", "Body004")

# Sketch on XY plane
sketch11 = body5.newObject("Sketcher::SketchObject", "Sketch010")
sketch11.AttachmentSupport = (doc.getObject("XY_Plane004"), [""])
sketch11.MapMode = "FlatFace"
sketch11.addGeometry(Part.LineSegment(Vector(2163, 2960, 0), Vector(2163, 1960, 0)), False)
sketch11.addGeometry(Part.LineSegment(Vector(2163, 1960, 0), Vector(2522, 1960, 0)), False)
sketch11.addGeometry(Part.LineSegment(Vector(2522, 1960, 0), Vector(2522, 2960, 0)), False)
sketch11.addGeometry(Part.LineSegment(Vector(2522, 2960, 0), Vector(2163, 2960, 0)), False)
sketch11.addConstraint(Sketcher.Constraint("Coincident", 0, 2, 1, 1))
sketch11.addConstraint(Sketcher.Constraint("Coincident", 1, 2, 2, 1))
sketch11.addConstraint(Sketcher.Constraint("Coincident", 2, 2, 3, 1))
sketch11.addConstraint(Sketcher.Constraint("Coincident", 3, 2, 0, 1))
sketch11.addConstraint(Sketcher.Constraint("Vertical", 0))
sketch11.addConstraint(Sketcher.Constraint("Horizontal", 1))
sketch11.addConstraint(Sketcher.Constraint("Vertical", 2))
sketch11.addConstraint(Sketcher.Constraint("Horizontal", 3))
sketch11.addConstraint(Sketcher.Constraint("DistanceX", 1, 1, 1, 2, Q("14.125 in")))
sketch11.addConstraint(Sketcher.Constraint("DistanceY", 0, 2, 0, 1, Q("39.375 in")))
sketch11.addConstraint(Sketcher.Constraint("DistanceX", -1, 1, 0, 2, 2163.100479))
sketch11.addConstraint(Sketcher.Constraint("DistanceY", -1, 1, 0, 2, 1960.032488))
pad5 = body5.newObject("PartDesign::Pad", "Pad004")
pad5.Profile = sketch11
pad5.Length = Q("24 in")

# Sketch on YZ plane
sketch12 = body5.newObject("Sketcher::SketchObject", "Sketch011")
sketch12.AttachmentSupport = (doc.getObject("YZ_Plane004"), [""])
sketch12.MapMode = "FlatFace"
sketch12.AttachmentOffset = App.Placement(Vector(0, 0, 2163.100479), App.Rotation())
sketch12.addGeometry(Part.LineSegment(Vector(2891, 533, 0), Vector(2891, 351, 0)), False)
sketch12.addGeometry(Part.LineSegment(Vector(2891, 351, 0), Vector(2024, 351, 0)), False)
sketch12.addGeometry(Part.LineSegment(Vector(2024, 351, 0), Vector(2024, 533, 0)), False)
sketch12.addGeometry(Part.LineSegment(Vector(2024, 533, 0), Vector(2891, 533, 0)), False)
sketch12.addGeometry(Part.LineSegment(Vector(2888, 240, 0), Vector(2888, 71, 0)), False)
sketch12.addGeometry(Part.LineSegment(Vector(2888, 71, 0), Vector(2016, 71, 0)), False)
sketch12.addGeometry(Part.LineSegment(Vector(2016, 71, 0), Vector(2016, 240, 0)), False)
sketch12.addGeometry(Part.LineSegment(Vector(2016, 240, 0), Vector(2888, 240, 0)), False)
sketch12.addConstraint(Sketcher.Constraint("Coincident", 0, 2, 1, 1))
sketch12.addConstraint(Sketcher.Constraint("Coincident", 1, 2, 2, 1))
sketch12.addConstraint(Sketcher.Constraint("Coincident", 2, 2, 3, 1))
sketch12.addConstraint(Sketcher.Constraint("Coincident", 3, 2, 0, 1))
sketch12.addConstraint(Sketcher.Constraint("Coincident", 4, 2, 5, 1))
sketch12.addConstraint(Sketcher.Constraint("Coincident", 5, 2, 6, 1))
sketch12.addConstraint(Sketcher.Constraint("Coincident", 6, 2, 7, 1))
sketch12.addConstraint(Sketcher.Constraint("Coincident", 7, 2, 4, 1))
sketch12.addConstraint(Sketcher.Constraint("Vertical", 0))
sketch12.addConstraint(Sketcher.Constraint("Horizontal", 1))
sketch12.addConstraint(Sketcher.Constraint("Vertical", 2))
sketch12.addConstraint(Sketcher.Constraint("Horizontal", 3))
sketch12.addConstraint(Sketcher.Constraint("Vertical", 4))
sketch12.addConstraint(Sketcher.Constraint("Horizontal", 5))
sketch12.addConstraint(Sketcher.Constraint("Vertical", 6))
sketch12.addConstraint(Sketcher.Constraint("Horizontal", 7))
sketch12.addConstraint(Sketcher.Constraint("DistanceX", 1, 2, 1, 1, 866.14275))
sketch12.addConstraint(Sketcher.Constraint("DistanceX", 5, 2, 5, 1, 872.215271))
sketch12.addConstraint(Sketcher.Constraint("DistanceY", 0, 2, 0, 1, 182.152093))
sketch12.addConstraint(Sketcher.Constraint("DistanceY", 4, 2, 4, 1, 168.765642))
sketch12.addConstraint(Sketcher.Constraint("DistanceY", -1, 1, 0, 2, 351.11171))
sketch12.addConstraint(Sketcher.Constraint("DistanceY", -1, 1, 6, 2, 240.219489))
sketch12.addConstraint(Sketcher.Constraint("DistanceX", -1, 1, 0, 2, 2890.586376))
sketch12.addConstraint(Sketcher.Constraint("DistanceX", -1, 1, 4, 2, 2888.305663))
pocket7 = body5.newObject("PartDesign::Pocket", "Pocket006")
pocket7.Profile = sketch12
pocket7.Length = Q("15 in")
pocket7.Reversed = True

doc.recompute()
